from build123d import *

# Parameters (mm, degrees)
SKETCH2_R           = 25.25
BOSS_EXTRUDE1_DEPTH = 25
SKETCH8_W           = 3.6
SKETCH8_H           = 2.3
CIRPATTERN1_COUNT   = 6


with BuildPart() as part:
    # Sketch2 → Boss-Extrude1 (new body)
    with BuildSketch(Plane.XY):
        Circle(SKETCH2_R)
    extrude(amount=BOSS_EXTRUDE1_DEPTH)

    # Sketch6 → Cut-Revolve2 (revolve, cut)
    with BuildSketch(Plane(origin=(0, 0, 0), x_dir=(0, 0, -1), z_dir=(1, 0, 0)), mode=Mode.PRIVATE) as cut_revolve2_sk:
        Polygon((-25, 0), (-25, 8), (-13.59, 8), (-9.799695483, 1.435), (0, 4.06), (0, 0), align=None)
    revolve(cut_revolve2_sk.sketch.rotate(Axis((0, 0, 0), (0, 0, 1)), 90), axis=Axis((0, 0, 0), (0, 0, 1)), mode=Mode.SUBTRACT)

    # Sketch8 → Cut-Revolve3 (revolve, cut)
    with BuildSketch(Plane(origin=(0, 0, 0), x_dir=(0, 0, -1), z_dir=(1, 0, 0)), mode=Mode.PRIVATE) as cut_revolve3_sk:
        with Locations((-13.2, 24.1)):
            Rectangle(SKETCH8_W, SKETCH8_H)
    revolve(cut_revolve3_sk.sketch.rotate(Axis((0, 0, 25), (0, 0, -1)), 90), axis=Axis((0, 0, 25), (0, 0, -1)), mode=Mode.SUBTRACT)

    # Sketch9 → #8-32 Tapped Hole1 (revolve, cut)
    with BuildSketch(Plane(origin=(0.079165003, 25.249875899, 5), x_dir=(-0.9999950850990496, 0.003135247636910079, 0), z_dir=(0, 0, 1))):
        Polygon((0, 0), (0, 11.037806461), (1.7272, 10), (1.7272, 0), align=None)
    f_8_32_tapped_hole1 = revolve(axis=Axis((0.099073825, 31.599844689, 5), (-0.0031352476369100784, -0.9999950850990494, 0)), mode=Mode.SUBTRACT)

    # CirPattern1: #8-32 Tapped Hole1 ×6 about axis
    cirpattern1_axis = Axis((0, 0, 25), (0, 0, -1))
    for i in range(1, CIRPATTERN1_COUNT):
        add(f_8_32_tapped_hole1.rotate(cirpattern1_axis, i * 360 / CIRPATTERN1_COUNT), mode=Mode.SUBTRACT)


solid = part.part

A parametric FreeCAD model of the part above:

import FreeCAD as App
import Part
import Sketcher

V = App.Vector
Q = App.Units.Quantity

doc = App.newDocument("Part")
body = doc.addObject("PartDesign::Body", "Body")

sketch1 = doc.addObject("Sketcher::SketchObject", "Sketch")
body.addObject(sketch1)
sketch1.AttachmentSupport = (doc.XY_Plane, [""])
sketch1.MapMode = "FlatFace"
sketch1.addGeometry(Part.Circle(V(0, 0, 0), V(0, 0, 1), 25.25), False)
sketch1.addConstraint([
    Sketcher.Constraint("Coincident", 0, 3, -1, 1),
    Sketcher.Constraint("Diameter", 0, Q("50.5 mm")),
])
pad1 = doc.addObject("PartDesign::Pad", "Pad")
body.addObject(pad1)
pad1.Profile = sketch1
pad1.Length = 25

sketch2 = doc.addObject("Sketcher::SketchObject", "Sketch001")
body.addObject(sketch2)
sketch2.AttachmentSupport = (doc.YZ_Plane, [""])
sketch2.MapMode = "FlatFace"
sketch2.addGeometry([
    Part.LineSegment(V(8, 25, 0), V(0, 25, 0)),
    Part.LineSegment(V(0, 25, 0), V(0, 0, 0)),
    Part.LineSegment(V(0, 0, 0), V(4.06, 0, 0)),
    Part.LineSegment(V(4.06, 0, 0), V(1.435, 9.799695, 0)),
    Part.LineSegment(V(1.435, 9.799695, 0), V(8, 13.59, 0)),
    Part.LineSegment(V(8, 13.59, 0), V(8, 25, 0)),
], False)
sketch2.addConstraint([
    Sketcher.Constraint("Coincident", 0, 2, 1, 1),
    Sketcher.Constraint("Coincident", 1, 2, 2, 1),
    Sketcher.Constraint("Coincident", 2, 2, 3, 1),
    Sketcher.Constraint("Coincident", 3, 2, 4, 1),
    Sketcher.Constraint("Coincident", 4, 2, 5, 1),
    Sketcher.Constraint("Coincident", 5, 2, 0, 1),
    Sketcher.Constraint("Horizontal", 0),
    Sketcher.Constraint("Vertical", 1),
    Sketcher.Constraint("Horizontal", 2),
    Sketcher.Constraint("Vertical", 5),
    Sketcher.Constraint("Coincident", 1, 2, -1, 1),
    Sketcher.Constraint("DistanceX", 0, 2, 0, 1, Q("8 mm")),
    Sketcher.Constraint("DistanceY", 1, 2, 1, 1, Q("25 mm")),
    Sketcher.Constraint("Angle", 4, Q("30 deg")),
    Sketcher.Constraint("DistanceX", 2, 1, 2, 2, Q("4.06 mm")),
    Sketcher.Constraint("DistanceY", 5, 1, 5, 2, Q("11.41 mm")),
    Sketcher.Constraint("DistanceX", -1, 1, 3, 2, Q("1.435 mm")),
])
groove = doc.addObject("PartDesign::Groove", "Groove")
body.addObject(groove)
groove.Profile = sketch2
groove.ReferenceAxis = (sketch2, ["V_Axis"])
groove.Angle = 360

sketch3 = doc.addObject("Sketcher::SketchObject", "Sketch002")
body.addObject(sketch3)
sketch3.AttachmentSupport = (doc.YZ_Plane, [""])
sketch3.MapMode = "FlatFace"
sketch3.addGeometry([
    Part.LineSegment(V(25.25, 15, 0), V(22.95, 15, 0)),
    Part.LineSegment(V(22.95, 15, 0), V(22.95, 11.4, 0)),
    Part.LineSegment(V(22.95, 11.4, 0), V(25.25, 11.4, 0)),
    Part.LineSegment(V(25.25, 11.4, 0), V(25.25, 15, 0)),
], False)
sketch3.addConstraint([
    Sketcher.Constraint("Coincident", 0, 2, 1, 1),
    Sketcher.Constraint("Coincident", 1, 2, 2, 1),
    Sketcher.Constraint("Coincident", 2, 2, 3, 1),
    Sketcher.Constraint("Coincident", 3, 2, 0, 1),
    Sketcher.Constraint("Horizontal", 0),
    Sketcher.Constraint("Vertical", 1),
    Sketcher.Constraint("Horizontal", 2),
    Sketcher.Constraint("Vertical", 3),
    Sketcher.Constraint("DistanceX", 0, 2, 0, 1, Q("2.3 mm")),
    Sketcher.Constraint("DistanceY", 1, 2, 1, 1, Q("3.6 mm")),
    Sketcher.Constraint("DistanceY", -1, 1, 0, 2, Q("15 mm")),
    Sketcher.Constraint("DistanceX", -1, 1, 0, 2, Q("22.95 mm")),
])
groove2 = doc.addObject("PartDesign::Groove", "Groove001")
body.addObject(groove2)
groove2.Profile = sketch3
groove2.ReferenceAxis = (sketch3, ["V_Axis"])
groove2.Angle = 360

sketch4 = doc.addObject("Sketcher::SketchObject", "Sketch003")
body.addObject(sketch4)
sketch4.AttachmentSupport = (doc.XY_Plane, [""])
sketch4.MapMode = "FlatFace"
sketch4.AttachmentOffset = App.Placement(V(0, 0, 5), App.Rotation())
sketch4.addGeometry([
    Part.LineSegment(V(0.044559, 14.212124, 0), V(0.079165, 25.249876, 0)),
    Part.LineSegment(V(0.079165, 25.249876, 0), V(-1.648027, 25.255291, 0)),
    Part.LineSegment(V(-1.648027, 25.255291, 0), V(-1.679379, 15.25534, 0)),
    Part.LineSegment(V(-1.679379, 15.25534, 0), V(0.044559, 14.212124, 0)),
], False)
sketch4.addGeometry(Part.LineSegment(V(0.079165, 25.249876, 0), V(0.044559, 14.212124, 0)), True)
sketch4.addConstraint([
    Sketcher.Constraint("Coincident", 0, 2, 1, 1),
    Sketcher.Constraint("Coincident", 1, 2, 2, 1),
    Sketcher.Constraint("Coincident", 2, 2, 3, 1),
    Sketcher.Constraint("Coincident", 3, 2, 0, 1),
    Sketcher.Constraint("Coincident", 4, 1, 0, 2),
    Sketcher.Constraint("Coincident", 4, 2, 3, 2),
    Sketcher.Constraint("Perpendicular", 0, 1),
    Sketcher.Constraint("Perpendicular", 1, 2),
    Sketcher.Constraint("Distance", 2, Q("10 mm")),
    Sketcher.Constraint("Distance", 1, Q("1.7272 mm")),
    Sketcher.Constraint("Distance", 3, Q("2.015009 mm")),
    Sketcher.Constraint("DistanceY", -1, 1, 1, 2, Q("25.255291 mm")),
    Sketcher.Constraint("DistanceX", 2, 2, -1, 1, Q("1.679379 mm")),
    Sketcher.Constraint("DistanceX", -1, 1, 3, 2, Q("0.044559 mm")),
])
groove3 = doc.addObject("PartDesign::Groove", "Groove002")
body.addObject(groove3)
groove3.Profile = sketch4
groove3.ReferenceAxis = (sketch4, ["Axis0"])
groove3.Angle = 360
doc.recompute()

polarpattern = doc.addObject("PartDesign::PolarPattern", "PolarPattern")
body.addObject(polarpattern)
polarpattern.Originals = [groove3]
polarpattern.Axis = (doc.Z_Axis, [""])
polarpattern.Angle = 360
polarpattern.Occurrences = 6
body.Tip = polarpattern

doc.recompute()
